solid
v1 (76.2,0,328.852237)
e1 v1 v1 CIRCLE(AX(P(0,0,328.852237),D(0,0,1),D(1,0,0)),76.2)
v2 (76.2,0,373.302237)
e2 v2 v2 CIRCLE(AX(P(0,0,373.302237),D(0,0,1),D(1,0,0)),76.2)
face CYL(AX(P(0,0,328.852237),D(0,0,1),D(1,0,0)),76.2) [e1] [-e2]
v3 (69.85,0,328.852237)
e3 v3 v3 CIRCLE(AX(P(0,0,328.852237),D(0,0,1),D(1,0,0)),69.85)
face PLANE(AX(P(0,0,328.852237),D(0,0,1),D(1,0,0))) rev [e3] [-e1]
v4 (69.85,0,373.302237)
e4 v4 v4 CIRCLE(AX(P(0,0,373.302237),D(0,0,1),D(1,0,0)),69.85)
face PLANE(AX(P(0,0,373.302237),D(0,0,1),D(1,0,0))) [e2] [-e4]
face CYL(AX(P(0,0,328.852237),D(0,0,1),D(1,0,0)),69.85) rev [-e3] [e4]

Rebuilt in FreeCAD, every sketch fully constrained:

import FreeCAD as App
import Part
import Sketcher
Q = App.Units.Quantity

doc = App.newDocument("Part")
body = doc.addObject("PartDesign::Body", "Body")

# Sketch on XY plane
sketch1 = doc.addObject("Sketcher::SketchObject", "Sketch")
body.addObject(sketch1)
sketch1.AttachmentSupport = (doc.XY_Plane, [""])
sketch1.MapMode = "FlatFace"
sketch1.AttachmentOffset = App.Placement(App.Vector(0, 0, 373.302237), App.Rotation())
sketch1.addGeometry(Part.Circle(App.Vector(0, 0, 0), App.Vector(0, 0, 1), 76), False)
sketch1.addGeometry(Part.Circle(App.Vector(0, 0, 0), App.Vector(0, 0, 1), 70), False)
sketch1.addConstraint(Sketcher.Constraint("Coincident", 0, 3, -1, 1))
sketch1.addConstraint(Sketcher.Constraint("Coincident", 1, 3, -1, 1))
sketch1.addConstraint(Sketcher.Constraint("Diameter", 0, Q("6 in")))
sketch1.addConstraint(Sketcher.Constraint("Diameter", 1, Q("5.5 in")))
pad1 = doc.addObject("PartDesign::Pad", "Pad")
body.addObject(pad1)
pad1.Profile = sketch1
pad1.Length = Q("1.75 in")
pad1.Reversed = True

doc.recompute()
